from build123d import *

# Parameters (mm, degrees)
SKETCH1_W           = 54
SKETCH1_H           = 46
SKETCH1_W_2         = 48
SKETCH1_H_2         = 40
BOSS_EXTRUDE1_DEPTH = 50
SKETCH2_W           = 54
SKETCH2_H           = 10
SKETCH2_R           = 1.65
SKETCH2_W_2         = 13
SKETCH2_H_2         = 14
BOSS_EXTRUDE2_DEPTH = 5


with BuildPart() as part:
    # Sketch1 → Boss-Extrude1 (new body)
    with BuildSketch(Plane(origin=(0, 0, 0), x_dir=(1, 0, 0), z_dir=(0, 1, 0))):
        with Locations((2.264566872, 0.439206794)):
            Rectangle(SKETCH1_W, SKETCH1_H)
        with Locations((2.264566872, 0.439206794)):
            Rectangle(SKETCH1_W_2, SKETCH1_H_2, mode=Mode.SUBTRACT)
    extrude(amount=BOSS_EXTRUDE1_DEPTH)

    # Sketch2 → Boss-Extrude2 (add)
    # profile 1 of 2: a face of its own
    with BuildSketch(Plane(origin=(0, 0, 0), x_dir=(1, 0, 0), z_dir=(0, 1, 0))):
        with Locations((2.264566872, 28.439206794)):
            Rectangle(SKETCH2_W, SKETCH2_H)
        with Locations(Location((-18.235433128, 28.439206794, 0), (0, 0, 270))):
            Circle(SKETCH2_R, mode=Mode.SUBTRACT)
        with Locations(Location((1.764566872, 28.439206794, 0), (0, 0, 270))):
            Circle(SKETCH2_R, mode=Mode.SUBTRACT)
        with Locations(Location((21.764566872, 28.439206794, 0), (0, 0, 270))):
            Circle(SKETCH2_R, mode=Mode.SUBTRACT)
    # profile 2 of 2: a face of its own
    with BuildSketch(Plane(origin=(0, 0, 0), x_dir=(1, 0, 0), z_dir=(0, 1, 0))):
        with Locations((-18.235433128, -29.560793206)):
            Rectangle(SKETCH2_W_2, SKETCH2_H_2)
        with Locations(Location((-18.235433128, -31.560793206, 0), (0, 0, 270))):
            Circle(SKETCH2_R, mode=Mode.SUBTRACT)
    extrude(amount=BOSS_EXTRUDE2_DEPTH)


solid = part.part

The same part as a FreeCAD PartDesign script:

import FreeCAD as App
import Part
import Sketcher


def add_polygon(sketch, points):
    """Adds a closed chain of lines whose ends are joined by coincident constraints."""
    first, n = sketch.GeometryCount, len(points)
    for a, b in zip(points, points[1:] + points[:1]):
        sketch.addGeometry(Part.LineSegment(App.Vector(*a, 0), App.Vector(*b, 0)), False)
    for i in range(n):
        sketch.addConstraint(Sketcher.Constraint("Coincident", first + i, 2, first + (i + 1) % n, 1))

doc = App.newDocument("Part")
body = doc.addObject("PartDesign::Body", "Body")

sketch1 = body.newObject("Sketcher::SketchObject", "Sketch")
sketch1.AttachmentSupport = (doc.getObject("XZ_Plane"), [""])
sketch1.MapMode = "FlatFace"
add_polygon(sketch1, [(-25, -23), (-25, 23), (29, 23), (29, -23)])
add_polygon(sketch1, [(26, 20), (-22, 20), (-22, -20), (26, -20)])
sketch1.addConstraint([
    Sketcher.Constraint("Vertical", 0),
    Sketcher.Constraint("Horizontal", 1),
    Sketcher.Constraint("Vertical", 2),
    Sketcher.Constraint("Horizontal", 3),
    Sketcher.Constraint("Horizontal", 4),
    Sketcher.Constraint("Vertical", 5),
    Sketcher.Constraint("Horizontal", 6),
    Sketcher.Constraint("Vertical", 7),
    Sketcher.Constraint("DistanceX", 1, 1, 1, 2, 54.0),
    Sketcher.Constraint("DistanceX", 4, 2, 4, 1, 48.0),
    Sketcher.Constraint("DistanceY", 0, 1, 0, 2, 46.0),
    Sketcher.Constraint("DistanceY", 5, 2, 5, 1, 40.0),
    Sketcher.Constraint("DistanceX", 0, 2, 4, 2, 3.0),
    Sketcher.Constraint("DistanceY", 4, 2, 0, 2, 3.0),
    Sketcher.Constraint("DistanceX", 0, 2, -1, 1, 24.735433),
    Sketcher.Constraint("DistanceY", -1, 1, 0, 2, 22.560793),
])
pad1 = body.newObject("PartDesign::Pad", "Pad")
pad1.Profile = sketch1
pad1.Length = 50
pad1.Reversed = True

sketch2 = body.newObject("Sketcher::SketchObject", "Sketch001")
sketch2.AttachmentSupport = (doc.getObject("XZ_Plane"), [""])
sketch2.MapMode = "FlatFace"
add_polygon(sketch2, [(-24.7, -33.4), (-24.7, -23.4), (29.3, -23.4), (29.3, -33.4)])
sketch2.addGeometry(Part.Circle(App.Vector(-18.2, -28.4, 0), App.Vector(0, 0, 1), 1.6), False)
sketch2.addGeometry(Part.Circle(App.Vector(1.8, -28.4, 0), App.Vector(0, 0, 1), 1.6), False)
sketch2.addGeometry(Part.Circle(App.Vector(21.8, -28.4, 0), App.Vector(0, 0, 1), 1.6), False)
add_polygon(sketch2, [(-24.7, 22.6), (-24.7, 36.6), (-11.7, 36.6), (-11.7, 22.6)])
sketch2.addGeometry(Part.Circle(App.Vector(-18.2, 31.6, 0), App.Vector(0, 0, 1), 1.6), False)
sketch2.addConstraint([
    Sketcher.Constraint("Vertical", 0),
    Sketcher.Constraint("Horizontal", 1),
    Sketcher.Constraint("Vertical", 2),
    Sketcher.Constraint("Horizontal", 3),
    Sketcher.Constraint("Vertical", 7),
    Sketcher.Constraint("Horizontal", 8),
    Sketcher.Constraint("Vertical", 9),
    Sketcher.Constraint("Horizontal", 10),
    Sketcher.Constraint("Equal", 4, 5),
    Sketcher.Constraint("Equal", 5, 6),
    Sketcher.Constraint("Equal", 6, 11),
    Sketcher.Constraint("Horizontal", 4, 3, 5, 3),
    Sketcher.Constraint("Horizontal", 5, 3, 6, 3),
    Sketcher.Constraint("Vertical", 4, 3, 11, 3),
    Sketcher.Constraint("Vertical", 3, 2, 7, 2),
    Sketcher.Constraint("Diameter", 4, 3.3),
    Sketcher.Constraint("DistanceX", 1, 1, 1, 2, 54.0),
    Sketcher.Constraint("DistanceX", 8, 1, 8, 2, 13.0),
    Sketcher.Constraint("DistanceY", 0, 1, 0, 2, 10.0),
    Sketcher.Constraint("DistanceY", 7, 1, 7, 2, 14.0),
    Sketcher.Constraint("DistanceX", 4, 3, 5, 3, 20.0),
    Sketcher.Constraint("DistanceX", 5, 3, 6, 3, 20.0),
    Sketcher.Constraint("DistanceY", 4, 3, 11, 3, 60.0),
    Sketcher.Constraint("DistanceY", 4, 3, 0, 2, 5.0),
    Sketcher.Constraint("DistanceY", 11, 3, 7, 2, 5.0),
    Sketcher.Constraint("DistanceX", 0, 2, 4, 3, 6.5),
    Sketcher.Constraint("DistanceX", 4, 3, -1, 1, 18.235433),
    Sketcher.Constraint("DistanceY", 4, 3, -1, 1, 28.439207),
])
pad2 = body.newObject("PartDesign::Pad", "Pad001")
pad2.Profile = sketch2
pad2.Length = 5
pad2.Reversed = True

doc.recompute()
